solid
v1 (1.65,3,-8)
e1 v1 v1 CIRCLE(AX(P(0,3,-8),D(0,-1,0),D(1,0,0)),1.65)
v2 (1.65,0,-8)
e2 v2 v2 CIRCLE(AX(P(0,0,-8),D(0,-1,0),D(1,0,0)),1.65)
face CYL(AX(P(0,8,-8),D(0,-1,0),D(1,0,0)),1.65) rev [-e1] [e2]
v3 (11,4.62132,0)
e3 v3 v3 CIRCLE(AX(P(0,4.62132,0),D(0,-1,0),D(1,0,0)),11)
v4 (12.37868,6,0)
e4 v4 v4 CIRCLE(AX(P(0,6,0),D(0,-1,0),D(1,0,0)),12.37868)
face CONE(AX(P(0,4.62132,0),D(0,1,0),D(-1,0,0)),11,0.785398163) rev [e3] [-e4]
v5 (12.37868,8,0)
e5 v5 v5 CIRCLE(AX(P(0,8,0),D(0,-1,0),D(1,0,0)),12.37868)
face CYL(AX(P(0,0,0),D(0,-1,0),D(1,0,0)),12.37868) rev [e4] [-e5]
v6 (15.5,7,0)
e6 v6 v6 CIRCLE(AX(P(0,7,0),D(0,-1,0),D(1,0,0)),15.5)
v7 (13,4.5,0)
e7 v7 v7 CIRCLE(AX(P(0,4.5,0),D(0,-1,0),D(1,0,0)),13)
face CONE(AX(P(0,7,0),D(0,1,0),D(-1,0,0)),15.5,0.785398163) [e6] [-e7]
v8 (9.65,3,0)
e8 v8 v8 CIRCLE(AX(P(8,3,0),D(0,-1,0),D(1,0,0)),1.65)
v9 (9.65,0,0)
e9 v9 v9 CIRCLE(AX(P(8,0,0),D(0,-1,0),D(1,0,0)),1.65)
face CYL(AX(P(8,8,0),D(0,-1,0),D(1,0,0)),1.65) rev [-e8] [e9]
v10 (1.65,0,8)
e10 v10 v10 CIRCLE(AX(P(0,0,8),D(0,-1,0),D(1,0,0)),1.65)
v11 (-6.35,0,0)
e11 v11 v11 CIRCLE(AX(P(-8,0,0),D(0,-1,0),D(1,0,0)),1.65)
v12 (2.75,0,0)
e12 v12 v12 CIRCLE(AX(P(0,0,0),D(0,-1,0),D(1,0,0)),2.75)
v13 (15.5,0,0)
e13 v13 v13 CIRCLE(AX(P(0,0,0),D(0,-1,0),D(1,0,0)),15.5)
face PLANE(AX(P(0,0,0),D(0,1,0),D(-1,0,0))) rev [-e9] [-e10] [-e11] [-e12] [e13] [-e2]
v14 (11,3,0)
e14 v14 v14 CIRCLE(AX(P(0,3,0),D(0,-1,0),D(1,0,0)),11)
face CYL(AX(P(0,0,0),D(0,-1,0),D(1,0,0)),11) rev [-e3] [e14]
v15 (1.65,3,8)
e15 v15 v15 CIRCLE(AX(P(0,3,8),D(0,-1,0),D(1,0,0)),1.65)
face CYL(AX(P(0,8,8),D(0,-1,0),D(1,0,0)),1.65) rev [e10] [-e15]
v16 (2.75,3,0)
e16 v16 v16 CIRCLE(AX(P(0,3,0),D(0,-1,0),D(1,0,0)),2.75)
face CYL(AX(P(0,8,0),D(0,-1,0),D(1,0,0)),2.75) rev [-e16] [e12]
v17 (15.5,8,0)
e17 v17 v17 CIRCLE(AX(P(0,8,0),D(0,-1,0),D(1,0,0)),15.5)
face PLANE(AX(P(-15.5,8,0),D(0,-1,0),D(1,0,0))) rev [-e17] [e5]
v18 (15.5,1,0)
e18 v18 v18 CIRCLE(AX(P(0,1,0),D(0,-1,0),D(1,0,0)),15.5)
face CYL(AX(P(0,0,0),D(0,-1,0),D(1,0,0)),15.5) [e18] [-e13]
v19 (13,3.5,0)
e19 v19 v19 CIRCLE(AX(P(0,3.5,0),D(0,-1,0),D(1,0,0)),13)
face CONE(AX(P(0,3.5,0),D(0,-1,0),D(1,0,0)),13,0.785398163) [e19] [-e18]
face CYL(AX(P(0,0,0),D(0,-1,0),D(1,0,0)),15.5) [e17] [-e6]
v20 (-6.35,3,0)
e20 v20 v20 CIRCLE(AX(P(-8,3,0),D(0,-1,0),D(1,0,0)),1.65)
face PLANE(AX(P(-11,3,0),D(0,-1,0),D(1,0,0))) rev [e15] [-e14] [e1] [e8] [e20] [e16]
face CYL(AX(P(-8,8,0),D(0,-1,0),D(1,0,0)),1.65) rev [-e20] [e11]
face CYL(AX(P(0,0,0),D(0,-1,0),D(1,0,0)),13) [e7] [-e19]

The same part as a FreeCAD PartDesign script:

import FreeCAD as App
import Part
import Sketcher

V = App.Vector


def add_polygon(sketch, points):
    """Adds a closed chain of lines whose ends are joined by coincident constraints."""
    first, n = sketch.GeometryCount, len(points)
    for a, b in zip(points, points[1:] + points[:1]):
        sketch.addGeometry(Part.LineSegment(App.Vector(*a, 0), App.Vector(*b, 0)), False)
    for i in range(n):
        sketch.addConstraint(Sketcher.Constraint("Coincident", first + i, 2, first + (i + 1) % n, 1))

doc = App.newDocument("Part")
body = doc.addObject("PartDesign::Body", "Body")

sketch1 = body.newObject("Sketcher::SketchObject", "Sketch")
sketch1.AttachmentSupport = (doc.getObject("XY_Plane"), [""])
sketch1.MapMode = "FlatFace"
add_polygon(sketch1, [(-15.5, 0), (0, 0), (0, 3), (-11, 3), (-11, 4.6), (-12.4, 6), (-12.4, 8), (-15.5, 8), (-15.5, 7), (-13, 4.5), (-13, 3.5), (-15.5, 1)])
sketch1.addConstraint([
    Sketcher.Constraint("Horizontal", 0),
    Sketcher.Constraint("Vertical", 1),
    Sketcher.Constraint("Horizontal", 2),
    Sketcher.Constraint("Vertical", 3),
    Sketcher.Constraint("Vertical", 5),
    Sketcher.Constraint("Horizontal", 6),
    Sketcher.Constraint("Vertical", 7),
    Sketcher.Constraint("Vertical", 9),
    Sketcher.Constraint("Vertical", 11),
    Sketcher.Constraint("Coincident", 0, 2, -1, 1),
    Sketcher.Constraint("Parallel", 4, 8),
    Sketcher.Constraint("Perpendicular", 8, 10),
    Sketcher.Constraint("Vertical", 7, 2, 10, 2),
    Sketcher.Constraint("Equal", 7, 9),
    Sketcher.Constraint("Equal", 9, 11),
    Sketcher.Constraint("Equal", 8, 10),
    Sketcher.Constraint("DistanceX", 2, 2, 2, 1, 11.0),
    Sketcher.Constraint("DistanceY", 1, 1, 1, 2, 3.0),
    Sketcher.Constraint("DistanceY", 5, 1, 5, 2, 2.0),
    Sketcher.Constraint("DistanceY", 7, 2, 7, 1, 1.0),
    Sketcher.Constraint("DistanceX", 0, 1, 0, 2, 15.5),
    Sketcher.Constraint("DistanceY", -1, 1, 4, 2, 6.0),
    Sketcher.Constraint("DistanceX", 6, 2, 6, 1, 3.12132),
])
revolution = body.newObject("PartDesign::Revolution", "Revolution")
revolution.Profile = sketch1
revolution.ReferenceAxis = (sketch1, ["V_Axis"])
revolution.Angle = 360

sketch2 = body.newObject("Sketcher::SketchObject", "Sketch001")
sketch2.AttachmentSupport = (doc.getObject("XZ_Plane"), [""])
sketch2.MapMode = "FlatFace"
sketch2.addGeometry([
    Part.Circle(V(0, 0, 0), V(0, 0, 1), 2.8),
    Part.Circle(V(0, 8, 0), V(0, 0, 1), 1.6),
    Part.Circle(V(8, 0, 0), V(0, 0, 1), 1.6),
    Part.Circle(V(0, -8, 0), V(0, 0, 1), 1.6),
    Part.Circle(V(-8, 0, 0), V(0, 0, 1), 1.6),
], False)
sketch2.addConstraint([
    Sketcher.Constraint("Coincident", 0, 3, -1, 1),
    Sketcher.Constraint("Equal", 1, 2),
    Sketcher.Constraint("Equal", 2, 3),
    Sketcher.Constraint("Equal", 3, 4),
    Sketcher.Constraint("Symmetric", 1, 3, 3, 3, -1, 1),
    Sketcher.Constraint("Symmetric", 2, 3, 4, 3, -1, 1),
    Sketcher.Constraint("PointOnObject", 1, 3, -2),
    Sketcher.Constraint("PointOnObject", 2, 3, -1),
    Sketcher.Constraint("Diameter", 0, 5.5),
    Sketcher.Constraint("Diameter", 1, 3.3),
    Sketcher.Constraint("DistanceY", -1, 1, 1, 3, 8.0),
    Sketcher.Constraint("DistanceX", -1, 1, 2, 3, 8.0),
])
pocket1 = body.newObject("PartDesign::Pocket", "Pocket")
pocket1.Profile = sketch2
pocket1.Type = "ThroughAll"

doc.recompute()
